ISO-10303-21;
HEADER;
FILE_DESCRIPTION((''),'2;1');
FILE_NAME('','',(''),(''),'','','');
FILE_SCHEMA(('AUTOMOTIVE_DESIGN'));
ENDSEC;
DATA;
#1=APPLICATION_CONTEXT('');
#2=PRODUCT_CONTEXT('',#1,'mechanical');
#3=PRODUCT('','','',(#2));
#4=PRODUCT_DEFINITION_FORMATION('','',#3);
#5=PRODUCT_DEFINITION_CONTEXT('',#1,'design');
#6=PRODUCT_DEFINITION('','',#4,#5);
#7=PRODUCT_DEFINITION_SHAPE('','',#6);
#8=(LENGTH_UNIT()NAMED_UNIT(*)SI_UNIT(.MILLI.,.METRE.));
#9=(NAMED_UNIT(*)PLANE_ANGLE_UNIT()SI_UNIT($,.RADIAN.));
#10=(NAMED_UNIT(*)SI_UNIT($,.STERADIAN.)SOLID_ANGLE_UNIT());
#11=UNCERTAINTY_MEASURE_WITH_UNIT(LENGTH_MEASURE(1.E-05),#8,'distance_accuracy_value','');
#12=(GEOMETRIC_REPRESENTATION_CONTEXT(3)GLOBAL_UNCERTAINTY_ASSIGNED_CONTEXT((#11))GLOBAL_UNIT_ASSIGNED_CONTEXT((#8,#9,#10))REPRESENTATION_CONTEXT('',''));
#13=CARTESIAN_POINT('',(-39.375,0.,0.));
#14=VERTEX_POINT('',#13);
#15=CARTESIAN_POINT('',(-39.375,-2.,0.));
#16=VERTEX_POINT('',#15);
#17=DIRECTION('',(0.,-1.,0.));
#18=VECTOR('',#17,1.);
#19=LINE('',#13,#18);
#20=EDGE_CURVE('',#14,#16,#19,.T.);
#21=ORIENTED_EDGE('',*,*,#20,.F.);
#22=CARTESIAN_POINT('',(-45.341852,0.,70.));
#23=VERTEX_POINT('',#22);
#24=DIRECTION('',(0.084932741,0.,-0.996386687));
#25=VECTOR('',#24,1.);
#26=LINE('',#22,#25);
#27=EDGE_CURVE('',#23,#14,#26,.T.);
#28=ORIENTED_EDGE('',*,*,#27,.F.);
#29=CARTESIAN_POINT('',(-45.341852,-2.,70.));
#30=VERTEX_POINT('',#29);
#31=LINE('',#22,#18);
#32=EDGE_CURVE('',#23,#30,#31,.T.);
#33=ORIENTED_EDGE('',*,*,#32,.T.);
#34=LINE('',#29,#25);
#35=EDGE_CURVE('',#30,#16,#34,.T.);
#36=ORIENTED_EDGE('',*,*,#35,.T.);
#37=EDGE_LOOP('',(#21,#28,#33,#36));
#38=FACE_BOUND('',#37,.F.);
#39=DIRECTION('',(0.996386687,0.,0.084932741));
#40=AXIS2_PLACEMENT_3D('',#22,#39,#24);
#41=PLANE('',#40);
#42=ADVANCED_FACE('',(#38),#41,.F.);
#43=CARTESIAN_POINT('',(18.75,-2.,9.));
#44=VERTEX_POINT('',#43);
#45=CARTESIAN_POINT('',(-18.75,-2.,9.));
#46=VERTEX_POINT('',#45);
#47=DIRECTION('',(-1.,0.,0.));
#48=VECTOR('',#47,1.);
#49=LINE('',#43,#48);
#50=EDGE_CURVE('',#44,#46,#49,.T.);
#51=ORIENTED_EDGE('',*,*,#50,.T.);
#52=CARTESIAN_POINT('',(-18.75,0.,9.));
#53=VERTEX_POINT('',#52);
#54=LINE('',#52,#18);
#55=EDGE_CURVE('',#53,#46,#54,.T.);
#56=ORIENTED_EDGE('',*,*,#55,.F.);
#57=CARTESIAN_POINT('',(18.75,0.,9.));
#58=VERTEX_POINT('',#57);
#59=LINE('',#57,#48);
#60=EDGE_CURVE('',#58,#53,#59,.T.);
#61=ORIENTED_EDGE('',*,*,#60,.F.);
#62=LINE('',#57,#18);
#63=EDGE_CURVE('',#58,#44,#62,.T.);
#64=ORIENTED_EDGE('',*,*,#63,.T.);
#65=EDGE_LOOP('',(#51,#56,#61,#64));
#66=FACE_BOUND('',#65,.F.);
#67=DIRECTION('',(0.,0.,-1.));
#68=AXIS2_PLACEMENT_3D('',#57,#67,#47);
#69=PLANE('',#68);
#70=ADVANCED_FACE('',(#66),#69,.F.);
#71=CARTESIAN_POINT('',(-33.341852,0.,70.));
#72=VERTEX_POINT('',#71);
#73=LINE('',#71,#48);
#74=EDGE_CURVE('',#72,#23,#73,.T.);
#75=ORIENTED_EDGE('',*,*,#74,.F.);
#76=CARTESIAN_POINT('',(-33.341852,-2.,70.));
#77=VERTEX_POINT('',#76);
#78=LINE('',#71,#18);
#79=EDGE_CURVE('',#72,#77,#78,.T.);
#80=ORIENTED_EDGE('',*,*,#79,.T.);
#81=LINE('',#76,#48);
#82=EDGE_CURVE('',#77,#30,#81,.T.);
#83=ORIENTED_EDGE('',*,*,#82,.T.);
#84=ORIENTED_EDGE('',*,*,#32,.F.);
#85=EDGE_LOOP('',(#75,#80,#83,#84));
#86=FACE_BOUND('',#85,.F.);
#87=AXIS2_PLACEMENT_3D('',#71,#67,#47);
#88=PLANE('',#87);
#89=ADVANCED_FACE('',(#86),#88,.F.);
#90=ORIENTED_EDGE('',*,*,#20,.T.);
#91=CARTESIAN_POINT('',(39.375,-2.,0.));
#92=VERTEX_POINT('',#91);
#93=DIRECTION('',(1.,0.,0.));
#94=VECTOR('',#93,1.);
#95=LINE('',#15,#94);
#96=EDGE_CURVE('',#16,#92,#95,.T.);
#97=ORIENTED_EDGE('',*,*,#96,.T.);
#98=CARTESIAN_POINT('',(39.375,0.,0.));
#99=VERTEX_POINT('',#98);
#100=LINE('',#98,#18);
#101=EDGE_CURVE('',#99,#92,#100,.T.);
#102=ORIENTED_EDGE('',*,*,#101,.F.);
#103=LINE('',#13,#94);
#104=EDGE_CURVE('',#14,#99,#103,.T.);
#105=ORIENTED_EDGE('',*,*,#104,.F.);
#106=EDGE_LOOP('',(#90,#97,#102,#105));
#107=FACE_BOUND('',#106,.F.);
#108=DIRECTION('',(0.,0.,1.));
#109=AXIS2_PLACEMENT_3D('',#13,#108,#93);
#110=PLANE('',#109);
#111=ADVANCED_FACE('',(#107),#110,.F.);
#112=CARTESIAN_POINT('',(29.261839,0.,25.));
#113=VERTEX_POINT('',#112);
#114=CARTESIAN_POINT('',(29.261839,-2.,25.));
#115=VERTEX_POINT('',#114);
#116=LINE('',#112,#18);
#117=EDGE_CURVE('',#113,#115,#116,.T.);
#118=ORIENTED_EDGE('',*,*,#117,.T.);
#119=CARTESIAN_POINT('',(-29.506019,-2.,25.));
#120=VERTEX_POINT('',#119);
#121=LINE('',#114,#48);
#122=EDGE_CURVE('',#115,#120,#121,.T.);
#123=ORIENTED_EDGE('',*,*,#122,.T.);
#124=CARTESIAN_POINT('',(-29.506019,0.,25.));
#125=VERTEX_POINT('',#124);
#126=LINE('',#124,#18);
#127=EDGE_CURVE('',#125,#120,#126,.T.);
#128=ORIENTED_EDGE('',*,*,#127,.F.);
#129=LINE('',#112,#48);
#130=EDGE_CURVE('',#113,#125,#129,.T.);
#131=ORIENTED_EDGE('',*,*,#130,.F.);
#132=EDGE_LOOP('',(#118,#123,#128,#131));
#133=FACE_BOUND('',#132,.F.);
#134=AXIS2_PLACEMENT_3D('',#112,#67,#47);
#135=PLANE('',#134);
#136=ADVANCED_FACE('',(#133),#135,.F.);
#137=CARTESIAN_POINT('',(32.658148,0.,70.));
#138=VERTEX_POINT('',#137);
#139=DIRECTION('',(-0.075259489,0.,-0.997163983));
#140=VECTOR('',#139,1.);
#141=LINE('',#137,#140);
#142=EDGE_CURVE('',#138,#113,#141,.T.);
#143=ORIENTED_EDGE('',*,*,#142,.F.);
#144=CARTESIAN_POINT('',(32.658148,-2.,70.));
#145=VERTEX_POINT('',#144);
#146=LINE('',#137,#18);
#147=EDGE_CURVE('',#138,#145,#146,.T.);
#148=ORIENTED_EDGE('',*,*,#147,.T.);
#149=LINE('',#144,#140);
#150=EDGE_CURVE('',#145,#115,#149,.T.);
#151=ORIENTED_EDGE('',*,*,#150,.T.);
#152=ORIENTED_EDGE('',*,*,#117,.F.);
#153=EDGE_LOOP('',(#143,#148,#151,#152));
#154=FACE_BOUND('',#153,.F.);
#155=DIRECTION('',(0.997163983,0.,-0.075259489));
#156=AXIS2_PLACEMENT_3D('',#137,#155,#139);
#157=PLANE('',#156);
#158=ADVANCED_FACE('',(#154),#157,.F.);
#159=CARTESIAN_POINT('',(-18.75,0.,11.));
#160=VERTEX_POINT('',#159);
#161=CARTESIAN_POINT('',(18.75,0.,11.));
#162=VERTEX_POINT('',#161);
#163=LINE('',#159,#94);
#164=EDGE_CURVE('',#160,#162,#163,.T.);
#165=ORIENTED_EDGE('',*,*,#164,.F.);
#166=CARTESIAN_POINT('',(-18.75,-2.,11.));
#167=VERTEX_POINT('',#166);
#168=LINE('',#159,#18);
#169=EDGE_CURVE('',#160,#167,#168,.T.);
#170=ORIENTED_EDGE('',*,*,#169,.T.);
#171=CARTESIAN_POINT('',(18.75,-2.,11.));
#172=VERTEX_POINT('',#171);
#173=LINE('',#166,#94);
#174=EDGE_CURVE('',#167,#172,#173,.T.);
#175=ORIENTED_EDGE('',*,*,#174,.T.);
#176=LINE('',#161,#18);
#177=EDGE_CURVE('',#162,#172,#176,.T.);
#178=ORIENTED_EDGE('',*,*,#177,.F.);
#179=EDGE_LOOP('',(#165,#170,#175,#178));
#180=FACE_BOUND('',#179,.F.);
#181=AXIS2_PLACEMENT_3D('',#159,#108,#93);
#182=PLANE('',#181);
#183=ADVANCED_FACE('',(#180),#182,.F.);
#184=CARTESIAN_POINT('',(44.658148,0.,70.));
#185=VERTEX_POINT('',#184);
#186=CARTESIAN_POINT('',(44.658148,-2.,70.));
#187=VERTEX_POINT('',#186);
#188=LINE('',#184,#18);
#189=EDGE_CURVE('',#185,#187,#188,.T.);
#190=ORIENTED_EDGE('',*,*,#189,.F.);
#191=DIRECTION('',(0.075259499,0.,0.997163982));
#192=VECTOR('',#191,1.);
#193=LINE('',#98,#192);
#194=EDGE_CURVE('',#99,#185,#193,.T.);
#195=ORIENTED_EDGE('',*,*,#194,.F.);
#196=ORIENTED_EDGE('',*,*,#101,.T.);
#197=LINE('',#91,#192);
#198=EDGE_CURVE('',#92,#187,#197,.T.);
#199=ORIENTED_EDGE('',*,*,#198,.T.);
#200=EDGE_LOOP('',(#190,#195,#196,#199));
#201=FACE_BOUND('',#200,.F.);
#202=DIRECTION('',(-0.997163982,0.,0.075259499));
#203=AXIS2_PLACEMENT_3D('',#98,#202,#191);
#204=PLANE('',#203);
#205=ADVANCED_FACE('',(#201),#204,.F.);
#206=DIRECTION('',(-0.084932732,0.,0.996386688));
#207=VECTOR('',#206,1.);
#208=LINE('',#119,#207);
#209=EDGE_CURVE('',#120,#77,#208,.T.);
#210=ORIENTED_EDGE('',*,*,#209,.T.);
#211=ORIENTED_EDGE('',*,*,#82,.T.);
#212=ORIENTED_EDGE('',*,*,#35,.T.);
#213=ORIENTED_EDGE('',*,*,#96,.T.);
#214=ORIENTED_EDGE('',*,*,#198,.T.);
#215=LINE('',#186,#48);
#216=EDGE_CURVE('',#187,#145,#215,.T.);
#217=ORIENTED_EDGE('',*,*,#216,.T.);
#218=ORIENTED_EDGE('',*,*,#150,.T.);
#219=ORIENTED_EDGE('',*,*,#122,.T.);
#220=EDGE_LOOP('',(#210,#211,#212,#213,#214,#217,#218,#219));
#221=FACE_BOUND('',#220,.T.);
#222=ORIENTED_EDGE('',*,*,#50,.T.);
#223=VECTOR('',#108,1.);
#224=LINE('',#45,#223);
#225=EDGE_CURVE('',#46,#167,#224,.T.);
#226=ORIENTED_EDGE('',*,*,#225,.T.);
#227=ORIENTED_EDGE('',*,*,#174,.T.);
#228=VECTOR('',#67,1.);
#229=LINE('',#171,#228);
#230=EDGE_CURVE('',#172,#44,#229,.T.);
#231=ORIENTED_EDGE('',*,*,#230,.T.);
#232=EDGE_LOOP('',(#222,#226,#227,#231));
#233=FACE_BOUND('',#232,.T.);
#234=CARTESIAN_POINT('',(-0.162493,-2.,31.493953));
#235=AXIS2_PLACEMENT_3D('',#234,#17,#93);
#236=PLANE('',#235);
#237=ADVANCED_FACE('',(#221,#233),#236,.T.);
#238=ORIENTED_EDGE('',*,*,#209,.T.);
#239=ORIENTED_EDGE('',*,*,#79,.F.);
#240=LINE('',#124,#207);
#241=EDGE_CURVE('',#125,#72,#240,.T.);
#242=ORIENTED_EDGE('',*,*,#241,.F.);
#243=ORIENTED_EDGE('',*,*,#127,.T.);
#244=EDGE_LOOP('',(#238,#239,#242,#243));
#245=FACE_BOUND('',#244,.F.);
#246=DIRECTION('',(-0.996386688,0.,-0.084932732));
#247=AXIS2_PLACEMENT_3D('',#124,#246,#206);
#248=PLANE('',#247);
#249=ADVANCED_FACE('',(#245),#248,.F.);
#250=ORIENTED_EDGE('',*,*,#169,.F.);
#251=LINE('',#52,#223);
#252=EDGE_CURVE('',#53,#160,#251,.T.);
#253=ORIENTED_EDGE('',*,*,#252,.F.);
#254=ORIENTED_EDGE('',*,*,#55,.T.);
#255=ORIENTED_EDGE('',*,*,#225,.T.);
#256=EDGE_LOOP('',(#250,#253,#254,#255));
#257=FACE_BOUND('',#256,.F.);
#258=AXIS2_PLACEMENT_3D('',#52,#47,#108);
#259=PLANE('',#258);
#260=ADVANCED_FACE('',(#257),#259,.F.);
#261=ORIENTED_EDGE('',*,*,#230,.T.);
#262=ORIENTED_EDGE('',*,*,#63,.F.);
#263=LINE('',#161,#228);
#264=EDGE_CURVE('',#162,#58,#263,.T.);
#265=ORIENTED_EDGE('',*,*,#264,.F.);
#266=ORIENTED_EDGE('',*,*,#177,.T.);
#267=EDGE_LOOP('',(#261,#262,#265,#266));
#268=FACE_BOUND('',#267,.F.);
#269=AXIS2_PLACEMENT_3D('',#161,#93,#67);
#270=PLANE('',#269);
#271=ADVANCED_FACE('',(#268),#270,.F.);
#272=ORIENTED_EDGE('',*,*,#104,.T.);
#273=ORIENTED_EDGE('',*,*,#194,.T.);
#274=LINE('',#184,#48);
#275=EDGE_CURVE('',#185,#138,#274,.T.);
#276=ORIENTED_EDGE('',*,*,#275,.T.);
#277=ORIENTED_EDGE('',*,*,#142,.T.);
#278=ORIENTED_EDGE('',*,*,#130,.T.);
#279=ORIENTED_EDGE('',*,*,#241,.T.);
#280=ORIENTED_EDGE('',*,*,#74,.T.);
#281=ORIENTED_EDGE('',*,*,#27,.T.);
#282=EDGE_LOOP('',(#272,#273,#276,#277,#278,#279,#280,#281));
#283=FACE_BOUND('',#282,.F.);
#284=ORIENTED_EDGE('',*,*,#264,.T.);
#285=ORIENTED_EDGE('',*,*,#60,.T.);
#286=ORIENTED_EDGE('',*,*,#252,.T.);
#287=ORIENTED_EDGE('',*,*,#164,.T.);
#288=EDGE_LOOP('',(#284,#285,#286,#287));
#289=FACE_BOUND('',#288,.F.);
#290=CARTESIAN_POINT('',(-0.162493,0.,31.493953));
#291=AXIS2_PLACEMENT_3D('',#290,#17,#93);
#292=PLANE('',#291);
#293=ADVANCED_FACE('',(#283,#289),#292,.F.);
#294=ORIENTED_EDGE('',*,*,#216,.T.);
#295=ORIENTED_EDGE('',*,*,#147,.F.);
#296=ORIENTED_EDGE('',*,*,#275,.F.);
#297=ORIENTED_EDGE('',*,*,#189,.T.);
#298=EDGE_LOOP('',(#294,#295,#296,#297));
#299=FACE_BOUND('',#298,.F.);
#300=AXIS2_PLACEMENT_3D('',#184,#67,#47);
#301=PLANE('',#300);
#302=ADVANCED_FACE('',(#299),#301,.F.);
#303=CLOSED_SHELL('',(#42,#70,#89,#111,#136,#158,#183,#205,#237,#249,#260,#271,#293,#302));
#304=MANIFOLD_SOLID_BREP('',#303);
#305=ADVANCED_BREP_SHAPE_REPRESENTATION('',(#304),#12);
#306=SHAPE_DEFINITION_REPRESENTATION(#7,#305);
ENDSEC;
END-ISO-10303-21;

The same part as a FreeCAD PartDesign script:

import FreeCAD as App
import Part
import Sketcher
Q = App.Units.Quantity

doc = App.newDocument("Part")
body = doc.addObject("PartDesign::Body", "Body")

# Sketch on XZ plane
sketch1 = body.newObject("Sketcher::SketchObject", "Sketch")
sketch1.AttachmentSupport = (doc.getObject("XZ_Plane"), [""])
sketch1.MapMode = "FlatFace"
sketch1.addGeometry([
    Part.LineSegment(App.Vector(-39.4, 0, 0), App.Vector(39.4, 0, 0)),  # 0
    Part.LineSegment(App.Vector(39.4, 0, 0), App.Vector(44.7, 70, 0)),  # 1
    Part.LineSegment(App.Vector(44.7, 70, 0), App.Vector(32.7, 70, 0)),  # 2
    Part.LineSegment(App.Vector(32.7, 70, 0), App.Vector(29.3, 25, 0)),  # 3
    Part.LineSegment(App.Vector(29.3, 25, 0), App.Vector(-29.5, 25, 0)),  # 4
    Part.LineSegment(App.Vector(-29.5, 25, 0), App.Vector(-33.3, 70, 0)),  # 5
    Part.LineSegment(App.Vector(-33.3, 70, 0), App.Vector(-45.3, 70, 0)),  # 6
    Part.LineSegment(App.Vector(-45.3, 70, 0), App.Vector(-39.4, 0, 0)),  # 7
    Part.LineSegment(App.Vector(18.8, 11, 0), App.Vector(18.8, 9, 0)),  # 8
    Part.LineSegment(App.Vector(18.8, 9, 0), App.Vector(-18.8, 9, 0)),  # 9
    Part.LineSegment(App.Vector(-18.8, 9, 0), App.Vector(-18.8, 11, 0)),  # 10
    Part.LineSegment(App.Vector(-18.8, 11, 0), App.Vector(18.8, 11, 0)),  # 11
], False)
sketch1.addConstraint([
    Sketcher.Constraint("Coincident", 0, 2, 1, 1),
    Sketcher.Constraint("Coincident", 1, 2, 2, 1),
    Sketcher.Constraint("Coincident", 2, 2, 3, 1),
    Sketcher.Constraint("Coincident", 3, 2, 4, 1),
    Sketcher.Constraint("Coincident", 4, 2, 5, 1),
    Sketcher.Constraint("Coincident", 5, 2, 6, 1),
    Sketcher.Constraint("Coincident", 6, 2, 7, 1),
    Sketcher.Constraint("Coincident", 7, 2, 0, 1),
    Sketcher.Constraint("Coincident", 8, 2, 9, 1),
    Sketcher.Constraint("Coincident", 9, 2, 10, 1),
    Sketcher.Constraint("Coincident", 10, 2, 11, 1),
    Sketcher.Constraint("Coincident", 11, 2, 8, 1),
    Sketcher.Constraint("Horizontal", 0),
    Sketcher.Constraint("Horizontal", 2),
    Sketcher.Constraint("Horizontal", 4),
    Sketcher.Constraint("Horizontal", 6),
    Sketcher.Constraint("Vertical", 8),
    Sketcher.Constraint("Horizontal", 9),
    Sketcher.Constraint("Vertical", 10),
    Sketcher.Constraint("Horizontal", 11),
    Sketcher.Constraint("Symmetric", 0, 2, 7, 2, -1, 1),
    Sketcher.Constraint("Parallel", 1, 3),
    Sketcher.Constraint("Parallel", 5, 7),
    Sketcher.Constraint("Horizontal", 2, 2, 5, 2),
    Sketcher.Constraint("Equal", 2, 6),
    Sketcher.Constraint("DistanceX", 2, 2, 2, 1, Q("12 mm")),
    Sketcher.Constraint("DistanceY", 8, 2, 8, 1, Q("2 mm")),
    Sketcher.Constraint("DistanceX", 9, 2, 9, 1, Q("37.5 mm")),
    Sketcher.Constraint("DistanceY", -1, 1, 1, 2, Q("70 mm")),
    Sketcher.Constraint("DistanceY", -1, 1, 3, 2, Q("25 mm")),
    Sketcher.Constraint("DistanceY", -1, 1, 8, 2, Q("9 mm")),
    Sketcher.Constraint("DistanceX", 5, 2, 2, 2, Q("66 mm")),
    Sketcher.Constraint("DistanceX", 0, 1, 0, 2, Q("78.75 mm")),
    Sketcher.Constraint("DistanceX", -1, 1, 8, 2, Q("18.75 mm")),
    Sketcher.Constraint("Distance", 5, Q("45.163189 mm")),
])
pad1 = body.newObject("PartDesign::Pad", "Pad")
pad1.Profile = sketch1
pad1.Length = 2

doc.recompute()
